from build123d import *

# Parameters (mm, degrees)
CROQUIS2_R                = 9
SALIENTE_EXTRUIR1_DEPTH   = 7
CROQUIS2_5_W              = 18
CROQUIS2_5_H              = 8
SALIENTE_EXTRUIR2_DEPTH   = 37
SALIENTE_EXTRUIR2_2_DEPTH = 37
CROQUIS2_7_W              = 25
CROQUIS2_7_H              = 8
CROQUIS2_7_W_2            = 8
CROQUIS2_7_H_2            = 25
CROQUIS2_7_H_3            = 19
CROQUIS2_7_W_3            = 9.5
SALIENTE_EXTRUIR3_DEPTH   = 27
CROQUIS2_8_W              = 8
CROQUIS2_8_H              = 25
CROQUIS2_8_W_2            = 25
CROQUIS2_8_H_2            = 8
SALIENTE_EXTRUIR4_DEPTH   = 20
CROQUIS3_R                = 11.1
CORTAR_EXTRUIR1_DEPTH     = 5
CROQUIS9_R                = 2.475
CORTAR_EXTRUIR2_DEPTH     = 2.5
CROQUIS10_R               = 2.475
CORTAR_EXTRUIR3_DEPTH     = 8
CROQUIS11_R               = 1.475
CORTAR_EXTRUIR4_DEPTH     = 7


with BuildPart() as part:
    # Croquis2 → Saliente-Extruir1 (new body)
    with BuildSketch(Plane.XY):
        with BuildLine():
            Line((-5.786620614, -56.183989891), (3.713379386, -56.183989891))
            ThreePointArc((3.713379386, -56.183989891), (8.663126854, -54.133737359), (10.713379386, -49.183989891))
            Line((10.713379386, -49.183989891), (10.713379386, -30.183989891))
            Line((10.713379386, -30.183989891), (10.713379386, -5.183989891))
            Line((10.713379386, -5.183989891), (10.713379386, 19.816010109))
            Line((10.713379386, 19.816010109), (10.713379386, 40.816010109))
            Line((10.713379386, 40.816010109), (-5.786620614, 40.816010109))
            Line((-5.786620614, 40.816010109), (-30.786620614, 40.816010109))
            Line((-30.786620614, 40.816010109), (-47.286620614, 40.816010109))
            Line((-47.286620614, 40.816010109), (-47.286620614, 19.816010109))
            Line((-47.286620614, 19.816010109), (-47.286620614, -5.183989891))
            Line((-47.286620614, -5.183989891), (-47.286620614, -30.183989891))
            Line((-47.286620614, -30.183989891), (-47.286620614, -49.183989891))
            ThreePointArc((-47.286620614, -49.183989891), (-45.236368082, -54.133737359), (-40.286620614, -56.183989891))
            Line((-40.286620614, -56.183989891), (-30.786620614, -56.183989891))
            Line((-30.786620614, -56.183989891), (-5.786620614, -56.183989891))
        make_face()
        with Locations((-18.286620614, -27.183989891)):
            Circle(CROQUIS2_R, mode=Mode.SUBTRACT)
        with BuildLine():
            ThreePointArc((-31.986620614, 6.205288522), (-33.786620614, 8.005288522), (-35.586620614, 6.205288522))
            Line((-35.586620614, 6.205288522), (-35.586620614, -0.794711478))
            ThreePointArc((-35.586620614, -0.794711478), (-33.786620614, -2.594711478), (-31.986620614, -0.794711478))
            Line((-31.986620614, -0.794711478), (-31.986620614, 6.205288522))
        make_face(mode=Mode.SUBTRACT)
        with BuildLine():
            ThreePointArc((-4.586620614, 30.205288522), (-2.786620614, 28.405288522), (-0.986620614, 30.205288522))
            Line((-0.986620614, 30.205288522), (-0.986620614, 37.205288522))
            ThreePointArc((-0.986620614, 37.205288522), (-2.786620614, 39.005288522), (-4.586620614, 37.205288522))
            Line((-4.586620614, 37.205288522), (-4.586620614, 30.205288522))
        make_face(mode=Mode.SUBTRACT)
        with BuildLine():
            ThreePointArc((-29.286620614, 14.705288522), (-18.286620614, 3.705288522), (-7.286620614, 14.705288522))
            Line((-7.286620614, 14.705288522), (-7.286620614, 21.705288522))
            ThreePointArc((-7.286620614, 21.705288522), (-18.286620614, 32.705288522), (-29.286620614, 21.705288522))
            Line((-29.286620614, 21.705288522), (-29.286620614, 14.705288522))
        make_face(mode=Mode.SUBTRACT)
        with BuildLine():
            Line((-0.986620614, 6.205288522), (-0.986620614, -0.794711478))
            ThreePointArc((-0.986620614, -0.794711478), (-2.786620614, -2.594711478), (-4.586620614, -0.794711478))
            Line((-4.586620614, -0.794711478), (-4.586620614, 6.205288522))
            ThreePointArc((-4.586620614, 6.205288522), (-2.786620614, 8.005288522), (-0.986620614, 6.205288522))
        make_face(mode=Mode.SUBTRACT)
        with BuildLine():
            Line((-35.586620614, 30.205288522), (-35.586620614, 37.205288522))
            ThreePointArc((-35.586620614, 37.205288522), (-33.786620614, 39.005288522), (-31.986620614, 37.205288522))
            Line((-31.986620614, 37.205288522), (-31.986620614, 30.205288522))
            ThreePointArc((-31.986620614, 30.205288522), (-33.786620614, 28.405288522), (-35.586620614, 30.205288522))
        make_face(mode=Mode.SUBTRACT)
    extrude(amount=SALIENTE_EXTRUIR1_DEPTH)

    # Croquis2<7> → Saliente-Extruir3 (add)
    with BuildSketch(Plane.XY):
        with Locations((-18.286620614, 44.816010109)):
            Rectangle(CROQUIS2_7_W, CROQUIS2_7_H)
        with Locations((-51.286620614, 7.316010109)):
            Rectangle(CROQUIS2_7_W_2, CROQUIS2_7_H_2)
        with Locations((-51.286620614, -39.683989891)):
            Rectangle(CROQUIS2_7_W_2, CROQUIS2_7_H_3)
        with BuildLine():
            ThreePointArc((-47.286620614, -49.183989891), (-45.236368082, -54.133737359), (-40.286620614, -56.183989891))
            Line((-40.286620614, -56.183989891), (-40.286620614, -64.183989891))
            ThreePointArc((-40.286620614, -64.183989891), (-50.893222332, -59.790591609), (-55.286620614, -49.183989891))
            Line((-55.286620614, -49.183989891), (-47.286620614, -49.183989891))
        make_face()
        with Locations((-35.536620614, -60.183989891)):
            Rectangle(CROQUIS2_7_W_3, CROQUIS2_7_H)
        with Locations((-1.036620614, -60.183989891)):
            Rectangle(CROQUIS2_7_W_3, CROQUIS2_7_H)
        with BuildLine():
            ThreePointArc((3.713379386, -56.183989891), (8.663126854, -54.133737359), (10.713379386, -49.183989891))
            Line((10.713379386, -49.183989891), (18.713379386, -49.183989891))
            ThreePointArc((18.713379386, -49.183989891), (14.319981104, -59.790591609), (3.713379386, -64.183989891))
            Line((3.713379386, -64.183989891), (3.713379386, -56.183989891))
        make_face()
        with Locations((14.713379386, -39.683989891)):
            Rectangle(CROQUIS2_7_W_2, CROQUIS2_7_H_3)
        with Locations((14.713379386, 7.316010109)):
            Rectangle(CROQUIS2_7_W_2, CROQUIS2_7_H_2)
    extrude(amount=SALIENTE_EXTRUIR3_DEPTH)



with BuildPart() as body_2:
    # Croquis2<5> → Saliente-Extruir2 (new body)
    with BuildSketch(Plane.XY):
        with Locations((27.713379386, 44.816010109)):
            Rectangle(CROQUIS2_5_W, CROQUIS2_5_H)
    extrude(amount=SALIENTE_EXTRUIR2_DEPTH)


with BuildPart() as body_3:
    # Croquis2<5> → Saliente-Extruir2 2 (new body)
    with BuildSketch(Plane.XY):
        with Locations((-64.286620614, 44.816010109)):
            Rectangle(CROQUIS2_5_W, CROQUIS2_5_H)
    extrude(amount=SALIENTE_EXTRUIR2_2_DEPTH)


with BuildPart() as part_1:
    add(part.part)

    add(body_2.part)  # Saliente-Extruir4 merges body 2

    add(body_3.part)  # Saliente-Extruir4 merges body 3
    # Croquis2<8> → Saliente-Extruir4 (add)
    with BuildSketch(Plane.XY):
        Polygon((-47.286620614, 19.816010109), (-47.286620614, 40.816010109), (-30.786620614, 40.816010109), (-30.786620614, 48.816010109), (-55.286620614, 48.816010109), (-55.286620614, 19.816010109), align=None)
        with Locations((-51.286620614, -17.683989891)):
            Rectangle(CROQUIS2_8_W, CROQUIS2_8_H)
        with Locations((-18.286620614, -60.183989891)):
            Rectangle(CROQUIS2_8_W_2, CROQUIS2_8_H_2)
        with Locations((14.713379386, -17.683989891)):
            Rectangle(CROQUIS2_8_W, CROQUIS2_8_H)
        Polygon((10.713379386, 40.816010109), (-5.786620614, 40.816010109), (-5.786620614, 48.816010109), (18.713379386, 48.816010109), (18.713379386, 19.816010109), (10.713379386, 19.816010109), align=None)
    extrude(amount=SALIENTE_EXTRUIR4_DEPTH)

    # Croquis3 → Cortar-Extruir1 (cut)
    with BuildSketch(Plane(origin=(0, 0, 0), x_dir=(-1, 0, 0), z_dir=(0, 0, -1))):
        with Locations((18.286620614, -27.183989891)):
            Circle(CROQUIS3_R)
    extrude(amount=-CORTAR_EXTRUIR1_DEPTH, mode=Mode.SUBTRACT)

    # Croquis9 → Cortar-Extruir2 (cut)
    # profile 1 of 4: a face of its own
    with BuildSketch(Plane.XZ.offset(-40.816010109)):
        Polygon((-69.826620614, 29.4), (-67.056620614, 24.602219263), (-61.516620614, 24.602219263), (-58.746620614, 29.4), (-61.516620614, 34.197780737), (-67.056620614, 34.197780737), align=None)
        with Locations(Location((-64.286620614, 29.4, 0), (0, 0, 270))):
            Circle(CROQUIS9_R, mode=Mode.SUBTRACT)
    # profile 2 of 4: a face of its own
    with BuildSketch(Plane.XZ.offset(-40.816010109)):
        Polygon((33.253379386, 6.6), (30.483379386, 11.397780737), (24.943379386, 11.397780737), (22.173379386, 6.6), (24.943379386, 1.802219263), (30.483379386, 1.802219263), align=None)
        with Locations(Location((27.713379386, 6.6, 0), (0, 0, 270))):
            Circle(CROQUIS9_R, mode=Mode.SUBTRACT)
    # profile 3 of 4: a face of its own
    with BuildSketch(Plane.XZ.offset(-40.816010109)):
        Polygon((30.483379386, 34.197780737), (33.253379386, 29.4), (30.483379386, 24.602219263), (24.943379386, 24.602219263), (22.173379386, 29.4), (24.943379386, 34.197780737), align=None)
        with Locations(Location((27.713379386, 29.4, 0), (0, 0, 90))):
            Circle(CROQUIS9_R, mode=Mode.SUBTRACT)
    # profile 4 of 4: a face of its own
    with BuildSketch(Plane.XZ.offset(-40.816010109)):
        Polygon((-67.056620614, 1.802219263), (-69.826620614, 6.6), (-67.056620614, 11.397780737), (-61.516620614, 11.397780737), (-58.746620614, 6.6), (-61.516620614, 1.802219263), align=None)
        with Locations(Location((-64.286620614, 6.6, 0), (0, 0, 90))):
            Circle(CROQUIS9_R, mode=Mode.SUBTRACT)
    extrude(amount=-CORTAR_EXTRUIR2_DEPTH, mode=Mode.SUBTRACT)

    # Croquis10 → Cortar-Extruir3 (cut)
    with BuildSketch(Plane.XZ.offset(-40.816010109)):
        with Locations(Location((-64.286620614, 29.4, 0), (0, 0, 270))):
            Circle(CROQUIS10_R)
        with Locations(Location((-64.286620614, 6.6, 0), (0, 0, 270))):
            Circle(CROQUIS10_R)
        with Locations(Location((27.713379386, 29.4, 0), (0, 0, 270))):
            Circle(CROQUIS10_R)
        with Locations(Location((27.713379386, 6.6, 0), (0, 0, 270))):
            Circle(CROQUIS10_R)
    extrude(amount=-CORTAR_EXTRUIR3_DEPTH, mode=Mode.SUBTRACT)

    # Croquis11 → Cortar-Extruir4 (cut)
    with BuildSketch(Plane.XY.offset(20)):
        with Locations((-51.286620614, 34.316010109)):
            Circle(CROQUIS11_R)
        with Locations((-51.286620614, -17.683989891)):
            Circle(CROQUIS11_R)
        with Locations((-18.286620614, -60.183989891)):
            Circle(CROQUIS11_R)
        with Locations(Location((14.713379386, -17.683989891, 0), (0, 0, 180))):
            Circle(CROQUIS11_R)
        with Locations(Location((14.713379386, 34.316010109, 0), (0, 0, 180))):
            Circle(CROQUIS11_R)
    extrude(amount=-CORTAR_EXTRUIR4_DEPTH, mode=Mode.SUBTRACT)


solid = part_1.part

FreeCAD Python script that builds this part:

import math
import FreeCAD as App
import Part
import Sketcher

V = App.Vector
Q = App.Units.Quantity

doc = App.newDocument("Part")
body = doc.addObject("PartDesign::Body", "Body")

# Sketch on XY plane
sketch1 = body.newObject("Sketcher::SketchObject", "Sketch")
sketch1.AttachmentSupport = (doc.getObject("XY_Plane"), [""])
sketch1.MapMode = "FlatFace"
sketch1.addGeometry([
    Part.ArcOfCircle(Part.Circle(V(3.713379, -49.18399, 0), V(0, 0, 1), 7), math.radians(-90), math.radians(0)),  # 0
    Part.LineSegment(V(10.713379, -49.18399, 0), V(10.713379, 40.81601, 0)),  # 1
    Part.LineSegment(V(10.713379, 40.81601, 0), V(-47.286621, 40.81601, 0)),  # 2
    Part.LineSegment(V(-47.286621, 40.81601, 0), V(-47.286621, -49.18399, 0)),  # 3
    Part.ArcOfCircle(Part.Circle(V(-40.286621, -49.18399, 0), V(0, 0, 1), 7), math.radians(-180), math.radians(-90)),  # 4
    Part.LineSegment(V(-40.286621, -56.18399, 0), V(3.713379, -56.18399, 0)),  # 5
    Part.Circle(V(-18.286621, -27.18399, 0), V(0, 0, 1), 9),  # 6
    Part.ArcOfCircle(Part.Circle(V(-33.786621, 6.205289, 0), V(0, 0, 1), 1.8), math.radians(0), math.radians(180)),  # 7
    Part.LineSegment(V(-31.986621, 6.205289, 0), V(-31.986621, -0.794711, 0)),  # 8
    Part.ArcOfCircle(Part.Circle(V(-33.786621, -0.794711, 0), V(0, 0, 1), 1.8), math.radians(180), math.radians(360)),  # 9
    Part.LineSegment(V(-35.586621, -0.794711, 0), V(-35.586621, 6.205289, 0)),  # 10
    Part.ArcOfCircle(Part.Circle(V(-33.786621, 30.205289, 0), V(0, 0, 1), 1.8), math.radians(180), math.radians(360)),  # 11
    Part.LineSegment(V(-35.586621, 30.205289, 0), V(-35.586621, 37.205289, 0)),  # 12
    Part.ArcOfCircle(Part.Circle(V(-33.786621, 37.205289, 0), V(0, 0, 1), 1.8), math.radians(0), math.radians(180)),  # 13
    Part.LineSegment(V(-31.986621, 37.205289, 0), V(-31.986621, 30.205289, 0)),  # 14
    Part.ArcOfCircle(Part.Circle(V(-18.286621, 14.705289, 0), V(0, 0, 1), 11), math.radians(180), math.radians(360)),  # 15
    Part.LineSegment(V(-29.286621, 14.705289, 0), V(-29.286621, 21.705289, 0)),  # 16
    Part.ArcOfCircle(Part.Circle(V(-18.286621, 21.705289, 0), V(0, 0, 1), 11), math.radians(0), math.radians(180)),  # 17
    Part.LineSegment(V(-7.286621, 21.705289, 0), V(-7.286621, 14.705289, 0)),  # 18
    Part.ArcOfCircle(Part.Circle(V(-2.786621, 6.205289, 0), V(0, 0, 1), 1.8), math.radians(0), math.radians(180)),  # 19
    Part.LineSegment(V(-0.986621, 6.205289, 0), V(-0.986621, -0.794711, 0)),  # 20
    Part.ArcOfCircle(Part.Circle(V(-2.786621, -0.794711, 0), V(0, 0, 1), 1.8), math.radians(180), math.radians(360)),  # 21
    Part.LineSegment(V(-4.586621, -0.794711, 0), V(-4.586621, 6.205289, 0)),  # 22
    Part.ArcOfCircle(Part.Circle(V(-2.786621, 30.205289, 0), V(0, 0, 1), 1.8), math.radians(180), math.radians(360)),  # 23
    Part.LineSegment(V(-4.586621, 30.205289, 0), V(-4.586621, 37.205289, 0)),  # 24
    Part.ArcOfCircle(Part.Circle(V(-2.786621, 37.205289, 0), V(0, 0, 1), 1.8), math.radians(0), math.radians(180)),  # 25
    Part.LineSegment(V(-0.986621, 37.205289, 0), V(-0.986621, 30.205289, 0)),  # 26
], False)
sketch1.addConstraint([
    Sketcher.Constraint("Tangent", 0, 2, 1, 1),
    Sketcher.Constraint("Coincident", 1, 2, 2, 1),
    Sketcher.Constraint("Coincident", 2, 2, 3, 1),
    Sketcher.Constraint("Tangent", 3, 2, 4, 1),
    Sketcher.Constraint("Tangent", 4, 2, 5, 1),
    Sketcher.Constraint("Tangent", 5, 2, 0, 1),
    Sketcher.Constraint("Tangent", 7, 1, 8, 1),
    Sketcher.Constraint("Tangent", 8, 2, 9, 2),
    Sketcher.Constraint("Tangent", 9, 1, 10, 1),
    Sketcher.Constraint("Tangent", 10, 2, 7, 2),
    Sketcher.Constraint("Tangent", 11, 1, 12, 1),
    Sketcher.Constraint("Tangent", 12, 2, 13, 2),
    Sketcher.Constraint("Tangent", 13, 1, 14, 1),
    Sketcher.Constraint("Tangent", 14, 2, 11, 2),
    Sketcher.Constraint("Tangent", 15, 1, 16, 1),
    Sketcher.Constraint("Tangent", 16, 2, 17, 2),
    Sketcher.Constraint("Tangent", 17, 1, 18, 1),
    Sketcher.Constraint("Tangent", 18, 2, 15, 2),
    Sketcher.Constraint("Tangent", 19, 1, 20, 1),
    Sketcher.Constraint("Tangent", 20, 2, 21, 2),
    Sketcher.Constraint("Tangent", 21, 1, 22, 1),
    Sketcher.Constraint("Tangent", 22, 2, 19, 2),
    Sketcher.Constraint("Tangent", 23, 1, 24, 1),
    Sketcher.Constraint("Tangent", 24, 2, 25, 2),
    Sketcher.Constraint("Tangent", 25, 1, 26, 1),
    Sketcher.Constraint("Tangent", 26, 2, 23, 2),
    Sketcher.Constraint("Vertical", 1),
    Sketcher.Constraint("Horizontal", 2),
    Sketcher.Constraint("Vertical", 3),
    Sketcher.Constraint("Horizontal", 5),
    Sketcher.Constraint("Vertical", 8),
    Sketcher.Constraint("Vertical", 10),
    Sketcher.Constraint("Vertical", 12),
    Sketcher.Constraint("Vertical", 14),
    Sketcher.Constraint("Vertical", 16),
    Sketcher.Constraint("Vertical", 18),
    Sketcher.Constraint("Vertical", 20),
    Sketcher.Constraint("Vertical", 22),
    Sketcher.Constraint("Vertical", 24),
    Sketcher.Constraint("Vertical", 26),
    Sketcher.Constraint("Equal", 0, 4),
    Sketcher.Constraint("Equal", 9, 11),
    Sketcher.Constraint("Equal", 13, 19),
    Sketcher.Constraint("Equal", 21, 23),
    Sketcher.Constraint("Horizontal", 7, 3, 19, 3),
    Sketcher.Constraint("Horizontal", 9, 3, 21, 3),
    Sketcher.Constraint("Horizontal", 11, 3, 23, 3),
    Sketcher.Constraint("Horizontal", 13, 3, 25, 3),
    Sketcher.Constraint("Vertical", 9, 3, 11, 3),
    Sketcher.Constraint("Vertical", 6, 3, 15, 3),
    Sketcher.Constraint("Vertical", 21, 3, 23, 3),
    Sketcher.Constraint("Equal", 10, 12),
    Sketcher.Constraint("Equal", 14, 16),
    Sketcher.Constraint("Diameter", 6, Q("18 mm")),
    Sketcher.Constraint("Radius", 0, Q("7 mm")),
    Sketcher.Constraint("Radius", 15, Q("11 mm")),
    Sketcher.Constraint("Radius", 7, Q("1.8 mm")),
    Sketcher.Constraint("DistanceX", 2, 2, 2, 1, Q("58 mm")),
    Sketcher.Constraint("DistanceY", 1, 1, 1, 2, Q("90 mm")),
    Sketcher.Constraint("DistanceY", 8, 2, 8, 1, Q("7 mm")),
    Sketcher.Constraint("DistanceX", 6, 3, 0, 3, Q("22 mm")),
    Sketcher.Constraint("DistanceY", 0, 3, 6, 3, Q("22 mm")),
    Sketcher.Constraint("DistanceY", 7, 3, 11, 3, Q("24 mm")),
    Sketcher.Constraint("DistanceX", 7, 3, 19, 3, Q("31 mm")),
    Sketcher.Constraint("DistanceX", 7, 3, 6, 3, Q("15.5 mm")),
    Sketcher.Constraint("DistanceY", 7, 3, 15, 3, Q("8.5 mm")),
    Sketcher.Constraint("DistanceX", -1, 1, 0, 3, Q("3.713379 mm")),
    Sketcher.Constraint("DistanceY", 0, 3, -1, 1, Q("49.18399 mm")),
    Sketcher.Constraint("DistanceY", -1, 1, 7, 3, Q("6.205289 mm")),
])
pad1 = body.newObject("PartDesign::Pad", "Pad")
pad1.Profile = sketch1
pad1.Length = 7

# Sketch on XY plane
sketch2 = body.newObject("Sketcher::SketchObject", "Sketch001")
sketch2.AttachmentSupport = (doc.getObject("XY_Plane"), [""])
sketch2.MapMode = "FlatFace"
sketch2.addGeometry([
    Part.LineSegment(V(-30.786621, 48.81601, 0), V(-30.786621, 40.81601, 0)),  # 0
    Part.LineSegment(V(-30.786621, 40.81601, 0), V(-5.786621, 40.81601, 0)),  # 1
    Part.LineSegment(V(-5.786621, 40.81601, 0), V(-5.786621, 48.81601, 0)),  # 2
    Part.LineSegment(V(-5.786621, 48.81601, 0), V(-30.786621, 48.81601, 0)),  # 3
    Part.LineSegment(V(-55.286621, 19.81601, 0), V(-55.286621, -5.18399, 0)),  # 4
    Part.LineSegment(V(-55.286621, -5.18399, 0), V(-47.286621, -5.18399, 0)),  # 5
    Part.LineSegment(V(-47.286621, -5.18399, 0), V(-47.286621, 19.81601, 0)),  # 6
    Part.LineSegment(V(-47.286621, 19.81601, 0), V(-55.286621, 19.81601, 0)),  # 7
    Part.LineSegment(V(-55.286621, -30.18399, 0), V(-55.286621, -49.18399, 0)),  # 8
    Part.ArcOfCircle(Part.Circle(V(-40.286621, -49.18399, 0), V(0, 0, 1), 15), math.radians(180), math.radians(270)),  # 9
    Part.LineSegment(V(-40.286621, -64.18399, 0), V(-30.786621, -64.18399, 0)),  # 10
    Part.LineSegment(V(-30.786621, -64.18399, 0), V(-30.786621, -56.18399, 0)),  # 11
    Part.LineSegment(V(-30.786621, -56.18399, 0), V(-40.286621, -56.18399, 0)),  # 12
    Part.ArcOfCircle(Part.Circle(V(-40.286621, -49.18399, 0), V(0, 0, 1), 7), math.radians(-180), math.radians(-90)),  # 13
    Part.LineSegment(V(-47.286621, -49.18399, 0), V(-47.286621, -30.18399, 0)),  # 14
    Part.LineSegment(V(-47.286621, -30.18399, 0), V(-55.286621, -30.18399, 0)),  # 15
    Part.LineSegment(V(-5.786621, -56.18399, 0), V(-5.786621, -64.18399, 0)),  # 16
    Part.LineSegment(V(-5.786621, -64.18399, 0), V(3.713379, -64.18399, 0)),  # 17
    Part.ArcOfCircle(Part.Circle(V(3.713379, -49.18399, 0), V(0, 0, 1), 15), math.radians(-90), math.radians(0)),  # 18
    Part.LineSegment(V(18.713379, -49.18399, 0), V(18.713379, -30.18399, 0)),  # 19
    Part.LineSegment(V(18.713379, -30.18399, 0), V(10.713379, -30.18399, 0)),  # 20
    Part.LineSegment(V(10.713379, -30.18399, 0), V(10.713379, -49.18399, 0)),  # 21
    Part.ArcOfCircle(Part.Circle(V(3.713379, -49.18399, 0), V(0, 0, 1), 7), math.radians(-90), math.radians(0)),  # 22
    Part.LineSegment(V(3.713379, -56.18399, 0), V(-5.786621, -56.18399, 0)),  # 23
    Part.LineSegment(V(10.713379, 19.81601, 0), V(10.713379, -5.18399, 0)),  # 24
    Part.LineSegment(V(10.713379, -5.18399, 0), V(18.713379, -5.18399, 0)),  # 25
    Part.LineSegment(V(18.713379, -5.18399, 0), V(18.713379, 19.81601, 0)),  # 26
    Part.LineSegment(V(18.713379, 19.81601, 0), V(10.713379, 19.81601, 0)),  # 27
], False)
sketch2.addConstraint([
    Sketcher.Constraint("Coincident", 0, 2, 1, 1),
    Sketcher.Constraint("Coincident", 1, 2, 2, 1),
    Sketcher.Constraint("Coincident", 2, 2, 3, 1),
    Sketcher.Constraint("Coincident", 3, 2, 0, 1),
    Sketcher.Constraint("Coincident", 4, 2, 5, 1),
    Sketcher.Constraint("Coincident", 5, 2, 6, 1),
    Sketcher.Constraint("Coincident", 6, 2, 7, 1),
    Sketcher.Constraint("Coincident", 7, 2, 4, 1),
    Sketcher.Constraint("Tangent", 8, 2, 9, 1),
    Sketcher.Constraint("Tangent", 9, 2, 10, 1),
    Sketcher.Constraint("Coincident", 10, 2, 11, 1),
    Sketcher.Constraint("Coincident", 11, 2, 12, 1),
    Sketcher.Constraint("Tangent", 12, 2, 13, 2),
    Sketcher.Constraint("Tangent", 13, 1, 14, 1),
    Sketcher.Constraint("Coincident", 14, 2, 15, 1),
    Sketcher.Constraint("Coincident", 15, 2, 8, 1),
    Sketcher.Constraint("Coincident", 16, 2, 17, 1),
    Sketcher.Constraint("Tangent", 17, 2, 18, 1),
    Sketcher.Constraint("Tangent", 18, 2, 19, 1),
    Sketcher.Constraint("Coincident", 19, 2, 20, 1),
    Sketcher.Constraint("Coincident", 20, 2, 21, 1),
    Sketcher.Constraint("Tangent", 21, 2, 22, 2),
    Sketcher.Constraint("Tangent", 22, 1, 23, 1),
    Sketcher.Constraint("Coincident", 23, 2, 16, 1),
    Sketcher.Constraint("Coincident", 24, 2, 25, 1),
    Sketcher.Constraint("Coincident", 25, 2, 26, 1),
    Sketcher.Constraint("Coincident", 26, 2, 27, 1),
    Sketcher.Constraint("Coincident", 27, 2, 24, 1),
    Sketcher.Constraint("Vertical", 0),
    Sketcher.Constraint("Horizontal", 1),
    Sketcher.Constraint("Vertical", 2),
    Sketcher.Constraint("Horizontal", 3),
    Sketcher.Constraint("Vertical", 4),
    Sketcher.Constraint("Horizontal", 5),
    Sketcher.Constraint("Vertical", 6),
    Sketcher.Constraint("Horizontal", 7),
    Sketcher.Constraint("Vertical", 8),
    Sketcher.Constraint("Horizontal", 10),
    Sketcher.Constraint("Vertical", 11),
    Sketcher.Constraint("Horizontal", 12),
    Sketcher.Constraint("Vertical", 14),
    Sketcher.Constraint("Horizontal", 15),
    Sketcher.Constraint("Vertical", 16),
    Sketcher.Constraint("Horizontal", 17),
    Sketcher.Constraint("Vertical", 19),
    Sketcher.Constraint("Horizontal", 20),
    Sketcher.Constraint("Vertical", 21),
    Sketcher.Constraint("Horizontal", 23),
    Sketcher.Constraint("Vertical", 24),
    Sketcher.Constraint("Horizontal", 25),
    Sketcher.Constraint("Vertical", 26),
    Sketcher.Constraint("Horizontal", 27),
    Sketcher.Constraint("Coincident", 13, 3, 9, 3),
    Sketcher.Constraint("Coincident", 22, 3, 18, 3),
    Sketcher.Constraint("Equal", 9, 18),
    Sketcher.Constraint("Equal", 13, 22),
    Sketcher.Constraint("Horizontal", 13, 3, 18, 3),
    Sketcher.Constraint("Horizontal", 15, 2, 19, 2),
    Sketcher.Constraint("Horizontal", 5, 2, 24, 2),
    Sketcher.Constraint("Horizontal", 7, 2, 26, 2),
    Sketcher.Constraint("Vertical", 7, 2, 8, 2),
    Sketcher.Constraint("Vertical", 3, 2, 10, 2),
    Sketcher.Constraint("Vertical", 6, 2, 13, 1),
    Sketcher.Constraint("Vertical", 2, 2, 16, 2),
    Sketcher.Constraint("Vertical", 21, 2, 24, 2),
    Sketcher.Constraint("Vertical", 19, 2, 25, 2),
    Sketcher.Constraint("Equal", 12, 17),
    Sketcher.Constraint("Equal", 27, 0),
    Sketcher.Constraint("Equal", 3, 4),
    Sketcher.Constraint("Radius", 9, Q("15 mm")),
    Sketcher.Constraint("Radius", 13, Q("7 mm")),
    Sketcher.Constraint("DistanceX", 1, 1, 1, 2, Q("25 mm")),
    Sketcher.Constraint("DistanceY", 8, 2, 8, 1, Q("19 mm")),
    Sketcher.Constraint("DistanceX", 10, 1, 10, 2, Q("9.5 mm")),
    Sketcher.Constraint("DistanceY", 13, 3, 0, 2, Q("90 mm")),
    Sketcher.Constraint("DistanceY", 13, 3, 4, 2, Q("44 mm")),
    Sketcher.Constraint("DistanceX", 9, 3, -1, 1, Q("40.286621 mm")),
    Sketcher.Constraint("DistanceY", 9, 3, -1, 1, Q("49.18399 mm")),
])
pad2 = body.newObject("PartDesign::Pad", "Pad001")
pad2.Profile = sketch2
pad2.Length = 27
body2 = doc.addObject("PartDesign::Body", "Body001")

# Sketch on XY plane
sketch3 = body2.newObject("Sketcher::SketchObject", "Sketch002")
sketch3.AttachmentSupport = (doc.getObject("XY_Plane001"), [""])
sketch3.MapMode = "FlatFace"
sketch3.addGeometry([
    Part.LineSegment(V(18.713379, 48.81601, 0), V(18.713379, 40.81601, 0)),
    Part.LineSegment(V(18.713379, 40.81601, 0), V(36.713379, 40.81601, 0)),
    Part.LineSegment(V(36.713379, 40.81601, 0), V(36.713379, 48.81601, 0)),
    Part.LineSegment(V(36.713379, 48.81601, 0), V(18.713379, 48.81601, 0)),
], False)
sketch3.addConstraint([
    Sketcher.Constraint("Coincident", 0, 2, 1, 1),
    Sketcher.Constraint("Coincident", 1, 2, 2, 1),
    Sketcher.Constraint("Coincident", 2, 2, 3, 1),
    Sketcher.Constraint("Coincident", 3, 2, 0, 1),
    Sketcher.Constraint("Vertical", 0),
    Sketcher.Constraint("Horizontal", 1),
    Sketcher.Constraint("Vertical", 2),
    Sketcher.Constraint("Horizontal", 3),
    Sketcher.Constraint("DistanceX", 1, 1, 1, 2, Q("18 mm")),
    Sketcher.Constraint("DistanceY", 0, 2, 0, 1, Q("8 mm")),
    Sketcher.Constraint("DistanceX", -1, 1, 0, 2, Q("18.713379 mm")),
    Sketcher.Constraint("DistanceY", -1, 1, 0, 2, Q("40.81601 mm")),
])
pad3 = body2.newObject("PartDesign::Pad", "Pad002")
pad3.Profile = sketch3
pad3.Length = 37
body3 = doc.addObject("PartDesign::Body", "Body002")

# Sketch on XY plane
sketch4 = body3.newObject("Sketcher::SketchObject", "Sketch003")
sketch4.AttachmentSupport = (doc.getObject("XY_Plane002"), [""])
sketch4.MapMode = "FlatFace"
sketch4.addGeometry([
    Part.LineSegment(V(-73.286621, 48.81601, 0), V(-73.286621, 40.81601, 0)),
    Part.LineSegment(V(-73.286621, 40.81601, 0), V(-55.286621, 40.81601, 0)),
    Part.LineSegment(V(-55.286621, 40.81601, 0), V(-55.286621, 48.81601, 0)),
    Part.LineSegment(V(-55.286621, 48.81601, 0), V(-73.286621, 48.81601, 0)),
], False)
sketch4.addConstraint([
    Sketcher.Constraint("Coincident", 0, 2, 1, 1),
    Sketcher.Constraint("Coincident", 1, 2, 2, 1),
    Sketcher.Constraint("Coincident", 2, 2, 3, 1),
    Sketcher.Constraint("Coincident", 3, 2, 0, 1),
    Sketcher.Constraint("Vertical", 0),
    Sketcher.Constraint("Horizontal", 1),
    Sketcher.Constraint("Vertical", 2),
    Sketcher.Constraint("Horizontal", 3),
    Sketcher.Constraint("DistanceX", 1, 1, 1, 2, Q("18 mm")),
    Sketcher.Constraint("DistanceY", 0, 2, 0, 1, Q("8 mm")),
    Sketcher.Constraint("DistanceX", 0, 2, -1, 1, Q("73.286621 mm")),
    Sketcher.Constraint("DistanceY", -1, 1, 0, 2, Q("40.81601 mm")),
])
pad4 = body3.newObject("PartDesign::Pad", "Pad003")
pad4.Profile = sketch4
pad4.Length = 37
body.AllowCompound = True
doc.recompute()

boolean = body.newObject("PartDesign::Boolean", "Boolean")
boolean.Type = "Fuse"
boolean.addObjects([body2])
doc.recompute()

boolean2 = body.newObject("PartDesign::Boolean", "Boolean001")
boolean2.Type = "Fuse"
boolean2.addObjects([body3])

# Sketch on XY plane
sketch5 = body.newObject("Sketcher::SketchObject", "Sketch004")
sketch5.AttachmentSupport = (doc.getObject("XY_Plane"), [""])
sketch5.MapMode = "FlatFace"
sketch5.addGeometry([
    Part.LineSegment(V(-47.286621, 19.81601, 0), V(-47.286621, 40.81601, 0)),  # 0
    Part.LineSegment(V(-47.286621, 40.81601, 0), V(-30.786621, 40.81601, 0)),  # 1
    Part.LineSegment(V(-30.786621, 40.81601, 0), V(-30.786621, 48.81601, 0)),  # 2
    Part.LineSegment(V(-30.786621, 48.81601, 0), V(-55.286621, 48.81601, 0)),  # 3
    Part.LineSegment(V(-55.286621, 48.81601, 0), V(-55.286621, 19.81601, 0)),  # 4
    Part.LineSegment(V(-55.286621, 19.81601, 0), V(-47.286621, 19.81601, 0)),  # 5
    Part.LineSegment(V(-55.286621, -5.18399, 0), V(-55.286621, -30.18399, 0)),  # 6
    Part.LineSegment(V(-55.286621, -30.18399, 0), V(-47.286621, -30.18399, 0)),  # 7
    Part.LineSegment(V(-47.286621, -30.18399, 0), V(-47.286621, -5.18399, 0)),  # 8
    Part.LineSegment(V(-47.286621, -5.18399, 0), V(-55.286621, -5.18399, 0)),  # 9
    Part.LineSegment(V(-30.786621, -56.18399, 0), V(-30.786621, -64.18399, 0)),  # 10
    Part.LineSegment(V(-30.786621, -64.18399, 0), V(-5.786621, -64.18399, 0)),  # 11
    Part.LineSegment(V(-5.786621, -64.18399, 0), V(-5.786621, -56.18399, 0)),  # 12
    Part.LineSegment(V(-5.786621, -56.18399, 0), V(-30.786621, -56.18399, 0)),  # 13
    Part.LineSegment(V(10.713379, -5.18399, 0), V(10.713379, -30.18399, 0)),  # 14
    Part.LineSegment(V(10.713379, -30.18399, 0), V(18.713379, -30.18399, 0)),  # 15
    Part.LineSegment(V(18.713379, -30.18399, 0), V(18.713379, -5.18399, 0)),  # 16
    Part.LineSegment(V(18.713379, -5.18399, 0), V(10.713379, -5.18399, 0)),  # 17
    Part.LineSegment(V(-5.786621, 40.81601, 0), V(10.713379, 40.81601, 0)),  # 18
    Part.LineSegment(V(10.713379, 40.81601, 0), V(10.713379, 19.81601, 0)),  # 19
    Part.LineSegment(V(10.713379, 19.81601, 0), V(18.713379, 19.81601, 0)),  # 20
    Part.LineSegment(V(18.713379, 19.81601, 0), V(18.713379, 48.81601, 0)),  # 21
    Part.LineSegment(V(18.713379, 48.81601, 0), V(-5.786621, 48.81601, 0)),  # 22
    Part.LineSegment(V(-5.786621, 48.81601, 0), V(-5.786621, 40.81601, 0)),  # 23
], False)
sketch5.addConstraint([
    Sketcher.Constraint("Coincident", 0, 2, 1, 1),
    Sketcher.Constraint("Coincident", 1, 2, 2, 1),
    Sketcher.Constraint("Coincident", 2, 2, 3, 1),
    Sketcher.Constraint("Coincident", 3, 2, 4, 1),
    Sketcher.Constraint("Coincident", 4, 2, 5, 1),
    Sketcher.Constraint("Coincident", 5, 2, 0, 1),
    Sketcher.Constraint("Coincident", 6, 2, 7, 1),
    Sketcher.Constraint("Coincident", 7, 2, 8, 1),
    Sketcher.Constraint("Coincident", 8, 2, 9, 1),
    Sketcher.Constraint("Coincident", 9, 2, 6, 1),
    Sketcher.Constraint("Coincident", 10, 2, 11, 1),
    Sketcher.Constraint("Coincident", 11, 2, 12, 1),
    Sketcher.Constraint("Coincident", 12, 2, 13, 1),
    Sketcher.Constraint("Coincident", 13, 2, 10, 1),
    Sketcher.Constraint("Coincident", 14, 2, 15, 1),
    Sketcher.Constraint("Coincident", 15, 2, 16, 1),
    Sketcher.Constraint("Coincident", 16, 2, 17, 1),
    Sketcher.Constraint("Coincident", 17, 2, 14, 1),
    Sketcher.Constraint("Coincident", 18, 2, 19, 1),
    Sketcher.Constraint("Coincident", 19, 2, 20, 1),
    Sketcher.Constraint("Coincident", 20, 2, 21, 1),
    Sketcher.Constraint("Coincident", 21, 2, 22, 1),
    Sketcher.Constraint("Coincident", 22, 2, 23, 1),
    Sketcher.Constraint("Coincident", 23, 2, 18, 1),
    Sketcher.Constraint("Vertical", 0),
    Sketcher.Constraint("Horizontal", 1),
    Sketcher.Constraint("Vertical", 2),
    Sketcher.Constraint("Horizontal", 3),
    Sketcher.Constraint("Vertical", 4),
    Sketcher.Constraint("Horizontal", 5),
    Sketcher.Constraint("Vertical", 6),
    Sketcher.Constraint("Horizontal", 7),
    Sketcher.Constraint("Vertical", 8),
    Sketcher.Constraint("Horizontal", 9),
    Sketcher.Constraint("Vertical", 10),
    Sketcher.Constraint("Horizontal", 11),
    Sketcher.Constraint("Vertical", 12),
    Sketcher.Constraint("Horizontal", 13),
    Sketcher.Constraint("Vertical", 14),
    Sketcher.Constraint("Horizontal", 15),
    Sketcher.Constraint("Vertical", 16),
    Sketcher.Constraint("Horizontal", 17),
    Sketcher.Constraint("Horizontal", 18),
    Sketcher.Constraint("Vertical", 19),
    Sketcher.Constraint("Horizontal", 20),
    Sketcher.Constraint("Vertical", 21),
    Sketcher.Constraint("Horizontal", 22),
    Sketcher.Constraint("Vertical", 23),
    Sketcher.Constraint("Horizontal", 7, 2, 14, 2),
    Sketcher.Constraint("Horizontal", 9, 2, 16, 2),
    Sketcher.Constraint("Horizontal", 1, 2, 18, 2),
    Sketcher.Constraint("Horizontal", 5, 2, 19, 2),
    Sketcher.Constraint("Horizontal", 3, 2, 21, 2),
    Sketcher.Constraint("Vertical", 4, 2, 6, 2),
    Sketcher.Constraint("Vertical", 5, 2, 7, 2),
    Sketcher.Constraint("Vertical", 2, 2, 10, 2),
    Sketcher.Constraint("Vertical", 17, 2, 18, 2),
    Sketcher.Constraint("Vertical", 16, 2, 20, 2),
    Sketcher.Constraint("Vertical", 12, 2, 22, 2),
    Sketcher.Constraint("Equal", 9, 15),
    Sketcher.Constraint("Equal", 1, 18),
    Sketcher.Constraint("Equal", 20, 2),
    Sketcher.Constraint("Equal", 13, 6),
    Sketcher.Constraint("Equal", 2, 10),
    Sketcher.Constraint("DistanceX", 5, 1, 5, 2, Q("8 mm")),
    Sketcher.Constraint("DistanceX", 11, 1, 11, 2, Q("25 mm")),
    Sketcher.Constraint("DistanceY", 0, 1, 0, 2, Q("21 mm")),
    Sketcher.Constraint("DistanceX", 1, 1, 1, 2, Q("16.5 mm")),
    Sketcher.Constraint("DistanceY", 6, 2, 4, 2, Q("50 mm")),
    Sketcher.Constraint("DistanceY", 10, 2, 7, 2, Q("34 mm")),
    Sketcher.Constraint("DistanceX", 0, 2, -1, 1, Q("47.286621 mm")),
    Sketcher.Constraint("DistanceY", -1, 1, 0, 2, Q("40.81601 mm")),
])
pad5 = body.newObject("PartDesign::Pad", "Pad004")
pad5.Profile = sketch5
pad5.Length = 20

# Sketch on XY plane
sketch6 = body.newObject("Sketcher::SketchObject", "Sketch005")
sketch6.AttachmentSupport = (doc.getObject("XY_Plane"), [""])
sketch6.MapMode = "FlatFace"
sketch6.addGeometry(Part.Circle(V(-18.286621, -27.18399, 0), V(0, 0, 1), 11.1), False)
sketch6.addConstraint([
    Sketcher.Constraint("Diameter", 0, Q("22.2 mm")),
    Sketcher.Constraint("DistanceX", 0, 3, -1, 1, Q("18.286621 mm")),
    Sketcher.Constraint("DistanceY", 0, 3, -1, 1, Q("27.18399 mm")),
])
pocket1 = body.newObject("PartDesign::Pocket", "Pocket")
pocket1.Profile = sketch6
pocket1.Length = 5
pocket1.Reversed = True

# Sketch on XZ plane
sketch7 = body.newObject("Sketcher::SketchObject", "Sketch006")
sketch7.AttachmentSupport = (doc.getObject("XZ_Plane"), [""])
sketch7.MapMode = "FlatFace"
sketch7.AttachmentOffset = App.Placement(V(0, 0, -40.81601), App.Rotation())
sketch7.addGeometry([
    Part.LineSegment(V(-69.826621, 29.4, 0), V(-67.056621, 24.602219, 0)),  # 0
    Part.LineSegment(V(-67.056621, 24.602219, 0), V(-61.516621, 24.602219, 0)),  # 1
    Part.LineSegment(V(-61.516621, 24.602219, 0), V(-58.746621, 29.4, 0)),  # 2
    Part.LineSegment(V(-58.746621, 29.4, 0), V(-61.516621, 34.197781, 0)),  # 3
    Part.LineSegment(V(-61.516621, 34.197781, 0), V(-67.056621, 34.197781, 0)),  # 4
    Part.LineSegment(V(-67.056621, 34.197781, 0), V(-69.826621, 29.4, 0)),  # 5
    Part.Circle(V(-64.286621, 29.4, 0), V(0, 0, 1), 2.475),  # 6
    Part.LineSegment(V(33.253379, 6.6, 0), V(30.483379, 11.397781, 0)),  # 7
    Part.LineSegment(V(30.483379, 11.397781, 0), V(24.943379, 11.397781, 0)),  # 8
    Part.LineSegment(V(24.943379, 11.397781, 0), V(22.173379, 6.6, 0)),  # 9
    Part.LineSegment(V(22.173379, 6.6, 0), V(24.943379, 1.802219, 0)),  # 10
    Part.LineSegment(V(24.943379, 1.802219, 0), V(30.483379, 1.802219, 0)),  # 11
    Part.LineSegment(V(30.483379, 1.802219, 0), V(33.253379, 6.6, 0)),  # 12
    Part.Circle(V(27.713379, 6.6, 0), V(0, 0, 1), 2.475),  # 13
    Part.LineSegment(V(33.253379, 29.4, 0), V(30.483379, 34.197781, 0)),  # 14
    Part.LineSegment(V(30.483379, 34.197781, 0), V(24.943379, 34.197781, 0)),  # 15
    Part.LineSegment(V(24.943379, 34.197781, 0), V(22.173379, 29.4, 0)),  # 16
    Part.LineSegment(V(22.173379, 29.4, 0), V(24.943379, 24.602219, 0)),  # 17
    Part.LineSegment(V(24.943379, 24.602219, 0), V(30.483379, 24.602219, 0)),  # 18
    Part.LineSegment(V(30.483379, 24.602219, 0), V(33.253379, 29.4, 0)),  # 19
    Part.Circle(V(27.713379, 29.4, 0), V(0, 0, 1), 2.475),  # 20
    Part.LineSegment(V(-69.826621, 6.6, 0), V(-67.056621, 1.802219, 0)),  # 21
    Part.LineSegment(V(-67.056621, 1.802219, 0), V(-61.516621, 1.802219, 0)),  # 22
    Part.LineSegment(V(-61.516621, 1.802219, 0), V(-58.746621, 6.6, 0)),  # 23
    Part.LineSegment(V(-58.746621, 6.6, 0), V(-61.516621, 11.397781, 0)),  # 24
    Part.LineSegment(V(-61.516621, 11.397781, 0), V(-67.056621, 11.397781, 0)),  # 25
    Part.LineSegment(V(-67.056621, 11.397781, 0), V(-69.826621, 6.6, 0)),  # 26
    Part.Circle(V(-64.286621, 6.6, 0), V(0, 0, 1), 2.475),  # 27
], False)
sketch7.addConstraint([
    Sketcher.Constraint("Coincident", 0, 2, 1, 1),
    Sketcher.Constraint("Coincident", 1, 2, 2, 1),
    Sketcher.Constraint("Coincident", 2, 2, 3, 1),
    Sketcher.Constraint("Coincident", 3, 2, 4, 1),
    Sketcher.Constraint("Coincident", 4, 2, 5, 1),
    Sketcher.Constraint("Coincident", 5, 2, 0, 1),
    Sketcher.Constraint("Coincident", 7, 2, 8, 1),
    Sketcher.Constraint("Coincident", 8, 2, 9, 1),
    Sketcher.Constraint("Coincident", 9, 2, 10, 1),
    Sketcher.Constraint("Coincident", 10, 2, 11, 1),
    Sketcher.Constraint("Coincident", 11, 2, 12, 1),
    Sketcher.Constraint("Coincident", 12, 2, 7, 1),
    Sketcher.Constraint("Coincident", 14, 2, 15, 1),
    Sketcher.Constraint("Coincident", 15, 2, 16, 1),
    Sketcher.Constraint("Coincident", 16, 2, 17, 1),
    Sketcher.Constraint("Coincident", 17, 2, 18, 1),
    Sketcher.Constraint("Coincident", 18, 2, 19, 1),
    Sketcher.Constraint("Coincident", 19, 2, 14, 1),
    Sketcher.Constraint("Coincident", 21, 2, 22, 1),
    Sketcher.Constraint("Coincident", 22, 2, 23, 1),
    Sketcher.Constraint("Coincident", 23, 2, 24, 1),
    Sketcher.Constraint("Coincident", 24, 2, 25, 1),
    Sketcher.Constraint("Coincident", 25, 2, 26, 1),
    Sketcher.Constraint("Coincident", 26, 2, 21, 1),
    Sketcher.Constraint("Horizontal", 1),
    Sketcher.Constraint("Horizontal", 4),
    Sketcher.Constraint("Horizontal", 8),
    Sketcher.Constraint("Horizontal", 11),
    Sketcher.Constraint("Horizontal", 15),
    Sketcher.Constraint("Horizontal", 18),
    Sketcher.Constraint("Horizontal", 22),
    Sketcher.Constraint("Horizontal", 25),
    Sketcher.Constraint("Equal", 6, 13),
    Sketcher.Constraint("Equal", 13, 20),
    Sketcher.Constraint("Equal", 20, 27),
    Sketcher.Constraint("Parallel", 0, 3),
    Sketcher.Constraint("Parallel", 2, 5),
    Sketcher.Constraint("Parallel", 3, 7),
    Sketcher.Constraint("Parallel", 5, 9),
    Sketcher.Constraint("Parallel", 7, 10),
    Sketcher.Constraint("Parallel", 9, 12),
    Sketcher.Constraint("Parallel", 10, 14),
    Sketcher.Constraint("Parallel", 12, 16),
    Sketcher.Constraint("Parallel", 14, 17),
    Sketcher.Constraint("Parallel", 16, 19),
    Sketcher.Constraint("Parallel", 17, 21),
    Sketcher.Constraint("Parallel", 19, 23),
    Sketcher.Constraint("Parallel", 21, 24),
    Sketcher.Constraint("Parallel", 23, 26),
    Sketcher.Constraint("Horizontal", 6, 3, 20, 3),
    Sketcher.Constraint("Horizontal", 13, 3, 27, 3),
    Sketcher.Constraint("Horizontal", 20, 3, 2, 2),
    Sketcher.Constraint("Horizontal", 2, 2, 5, 2),
    Sketcher.Constraint("Horizontal", 27, 3, 9, 2),
    Sketcher.Constraint("Horizontal", 9, 2, 12, 2),
    Sketcher.Constraint("Horizontal", 4, 2, 14, 2),
    Sketcher.Constraint("Horizontal", 5, 2, 16, 2),
    Sketcher.Constraint("Horizontal", 1, 2, 17, 2),
    Sketcher.Constraint("Horizontal", 16, 2, 19, 2),
    Sketcher.Constraint("Horizontal", 11, 2, 21, 2),
    Sketcher.Constraint("Horizontal", 12, 2, 23, 2),
    Sketcher.Constraint("Horizontal", 8, 2, 24, 2),
    Sketcher.Constraint("Horizontal", 23, 2, 26, 2),
    Sketcher.Constraint("Vertical", 13, 3, 20, 3),
    Sketcher.Constraint("Vertical", 6, 3, 27, 3),
    Sketcher.Constraint("Vertical", 1, 2, 3, 2),
    Sketcher.Constraint("Vertical", 0, 2, 4, 2),
    Sketcher.Constraint("Vertical", 8, 2, 10, 2),
    Sketcher.Constraint("Vertical", 11, 2, 14, 2),
    Sketcher.Constraint("Vertical", 10, 2, 15, 2),
    Sketcher.Constraint("Vertical", 9, 2, 16, 2),
    Sketcher.Constraint("Vertical", 4, 2, 21, 2),
    Sketcher.Constraint("Vertical", 3, 2, 22, 2),
    Sketcher.Constraint("Equal", 4, 8),
    Sketcher.Constraint("Diameter", 6, Q("4.95 mm")),
    Sketcher.Constraint("Angle", 0, Q("-60 deg")),
    Sketcher.Constraint("DistanceX", 6, 3, 13, 3, Q("92 mm")),
    Sketcher.Constraint("DistanceX", 1, 2, 7, 2, Q("92 mm")),
    Sketcher.Constraint("DistanceX", 1, 1, 1, 2, Q("5.54 mm")),
    Sketcher.Constraint("DistanceY", -1, 1, 6, 3, Q("29.4 mm")),
    Sketcher.Constraint("DistanceY", -1, 1, 13, 3, Q("6.6 mm")),
    Sketcher.Constraint("Distance", 0, Q("5.54 mm")),
    Sketcher.Constraint("DistanceX", 0, 2, 6, 3, Q("2.77 mm")),
    Sketcher.Constraint("DistanceX", 6, 3, -1, 1, Q("64.286621 mm")),
])
pocket2 = body.newObject("PartDesign::Pocket", "Pocket001")
pocket2.Profile = sketch7
pocket2.Length = 2.5

# Sketch on XZ plane
sketch8 = body.newObject("Sketcher::SketchObject", "Sketch007")
sketch8.AttachmentSupport = (doc.getObject("XZ_Plane"), [""])
sketch8.MapMode = "FlatFace"
sketch8.AttachmentOffset = App.Placement(V(0, 0, -40.81601), App.Rotation())
sketch8.addGeometry([
    Part.Circle(V(-64.286621, 29.4, 0), V(0, 0, 1), 2.475),
    Part.Circle(V(-64.286621, 6.6, 0), V(0, 0, 1), 2.475),
    Part.Circle(V(27.713379, 29.4, 0), V(0, 0, 1), 2.475),
    Part.Circle(V(27.713379, 6.6, 0), V(0, 0, 1), 2.475),
], False)
sketch8.addConstraint([
    Sketcher.Constraint("Equal", 0, 1),
    Sketcher.Constraint("Equal", 1, 2),
    Sketcher.Constraint("Equal", 2, 3),
    Sketcher.Constraint("Horizontal", 0, 3, 2, 3),
    Sketcher.Constraint("Horizontal", 1, 3, 3, 3),
    Sketcher.Constraint("Vertical", 0, 3, 1, 3),
    Sketcher.Constraint("Vertical", 2, 3, 3, 3),
    Sketcher.Constraint("Diameter", 0, Q("4.95 mm")),
    Sketcher.Constraint("DistanceX", 0, 3, 2, 3, Q("92 mm")),
    Sketcher.Constraint("DistanceY", -1, 1, 0, 3, Q("29.4 mm")),
    Sketcher.Constraint("DistanceY", -1, 1, 1, 3, Q("6.6 mm")),
    Sketcher.Constraint("DistanceX", 0, 3, -1, 1, Q("64.286621 mm")),
])
pocket3 = body.newObject("PartDesign::Pocket", "Pocket002")
pocket3.Profile = sketch8
pocket3.Length = 8

# Sketch on XY plane
sketch9 = body.newObject("Sketcher::SketchObject", "Sketch008")
sketch9.AttachmentSupport = (doc.getObject("XY_Plane"), [""])
sketch9.MapMode = "FlatFace"
sketch9.AttachmentOffset = App.Placement(V(0, 0, 20), App.Rotation())
sketch9.addGeometry([
    Part.Circle(V(-51.286621, 34.31601, 0), V(0, 0, 1), 1.475),  # 0
    Part.Circle(V(-51.286621, -17.68399, 0), V(0, 0, 1), 1.475),  # 1
    Part.Circle(V(-18.286621, -60.18399, 0), V(0, 0, 1), 1.475),  # 2
    Part.Circle(V(14.713379, -17.68399, 0), V(0, 0, 1), 1.475),  # 3
    Part.Circle(V(14.713379, 34.31601, 0), V(0, 0, 1), 1.475),  # 4
], False)
sketch9.addConstraint([
    Sketcher.Constraint("Equal", 0, 1),
    Sketcher.Constraint("Equal", 1, 2),
    Sketcher.Constraint("Equal", 2, 3),
    Sketcher.Constraint("Equal", 3, 4),
    Sketcher.Constraint("Horizontal", 1, 3, 3, 3),
    Sketcher.Constraint("Horizontal", 0, 3, 4, 3),
    Sketcher.Constraint("Vertical", 0, 3, 1, 3),
    Sketcher.Constraint("Vertical", 3, 3, 4, 3),
    Sketcher.Constraint("Diameter", 0, Q("2.95 mm")),
    Sketcher.Constraint("DistanceY", 1, 3, 0, 3, Q("52 mm")),
    Sketcher.Constraint("DistanceX", 1, 3, 2, 3, Q("33 mm")),
    Sketcher.Constraint("DistanceX", 2, 3, 3, 3, Q("33 mm")),
    Sketcher.Constraint("DistanceY", 2, 3, 1, 3, Q("42.5 mm")),
    Sketcher.Constraint("DistanceX", 0, 3, -1, 1, Q("51.286621 mm")),
    Sketcher.Constraint("DistanceY", -1, 1, 0, 3, Q("34.31601 mm")),
])
pocket4 = body.newObject("PartDesign::Pocket", "Pocket003")
pocket4.Profile = sketch9
pocket4.Length = 7

doc.recompute()
